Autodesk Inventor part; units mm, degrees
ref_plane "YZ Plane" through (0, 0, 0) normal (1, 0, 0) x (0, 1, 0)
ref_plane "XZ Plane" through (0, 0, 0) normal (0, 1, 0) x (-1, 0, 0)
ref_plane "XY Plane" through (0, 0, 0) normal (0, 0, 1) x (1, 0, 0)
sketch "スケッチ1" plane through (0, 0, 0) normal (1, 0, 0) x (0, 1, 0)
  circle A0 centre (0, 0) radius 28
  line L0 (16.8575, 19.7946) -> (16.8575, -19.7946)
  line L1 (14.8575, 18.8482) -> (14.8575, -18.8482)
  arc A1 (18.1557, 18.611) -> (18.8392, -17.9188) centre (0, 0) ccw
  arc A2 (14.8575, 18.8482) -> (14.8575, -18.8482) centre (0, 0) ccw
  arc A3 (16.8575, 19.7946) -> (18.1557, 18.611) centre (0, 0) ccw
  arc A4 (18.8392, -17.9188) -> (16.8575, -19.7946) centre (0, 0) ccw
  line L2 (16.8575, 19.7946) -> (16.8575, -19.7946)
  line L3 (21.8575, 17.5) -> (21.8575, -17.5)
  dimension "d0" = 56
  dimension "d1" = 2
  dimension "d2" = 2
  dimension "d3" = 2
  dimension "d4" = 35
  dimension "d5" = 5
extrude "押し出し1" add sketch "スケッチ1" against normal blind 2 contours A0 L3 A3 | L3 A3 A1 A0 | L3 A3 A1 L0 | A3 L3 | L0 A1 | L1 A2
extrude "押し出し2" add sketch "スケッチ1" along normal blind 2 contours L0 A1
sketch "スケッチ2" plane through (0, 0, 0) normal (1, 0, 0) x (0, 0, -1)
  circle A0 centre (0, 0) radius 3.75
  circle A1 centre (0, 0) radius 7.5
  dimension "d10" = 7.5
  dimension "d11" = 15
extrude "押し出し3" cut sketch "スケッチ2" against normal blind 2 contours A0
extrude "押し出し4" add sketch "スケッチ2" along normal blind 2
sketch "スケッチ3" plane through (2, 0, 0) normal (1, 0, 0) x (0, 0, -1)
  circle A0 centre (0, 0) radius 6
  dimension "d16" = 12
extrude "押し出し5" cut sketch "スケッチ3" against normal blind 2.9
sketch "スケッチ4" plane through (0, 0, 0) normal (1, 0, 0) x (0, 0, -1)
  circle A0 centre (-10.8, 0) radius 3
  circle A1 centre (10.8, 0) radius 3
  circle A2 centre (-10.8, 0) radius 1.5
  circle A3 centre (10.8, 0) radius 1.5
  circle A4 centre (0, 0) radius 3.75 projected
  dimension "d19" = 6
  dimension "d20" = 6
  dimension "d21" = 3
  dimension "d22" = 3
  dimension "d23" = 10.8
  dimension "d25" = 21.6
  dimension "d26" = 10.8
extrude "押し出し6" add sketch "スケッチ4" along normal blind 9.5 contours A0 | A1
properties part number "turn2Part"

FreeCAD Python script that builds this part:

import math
import FreeCAD as App
import Part
import Sketcher
from FreeCAD import Vector
Q = App.Units.Quantity

doc = App.newDocument("Part")
body = doc.addObject("PartDesign::Body", "Body")

sketch1 = body.newObject("Sketcher::SketchObject", "Sketch")
sketch1.AttachmentSupport = (doc.getObject("YZ_Plane"), [""])
sketch1.MapMode = "FlatFace"
sketch1.addGeometry(Part.Circle(Vector(0, 0, 0), Vector(0, 0, 1), 28), False)
sketch1.addConstraint([
    Sketcher.Constraint("Coincident", 0, 3, -1, 1),
    Sketcher.Constraint("Diameter", 0, Q("56 mm")),
])
pad1 = body.newObject("PartDesign::Pad", "Pad")
pad1.Profile = sketch1
pad1.Length = 2
pad1.Reversed = True

sketch2 = body.newObject("Sketcher::SketchObject", "Sketch001")
sketch2.AttachmentSupport = (doc.getObject("YZ_Plane"), [""])
sketch2.MapMode = "FlatFace"
sketch2.addGeometry([
    Part.LineSegment(Vector(17, -20, 0), Vector(17, 20, 0)),
    Part.ArcOfCircle(Part.Circle(Vector(0, 0, 0), Vector(0, 0, 1), 26), math.radians(50), math.radians(310)),
    Part.ArcOfCircle(Part.Circle(Vector(0, 0, 0), Vector(0, 0, 1), 24), math.radians(52), math.radians(308)),
    Part.LineSegment(Vector(15, 19, 0), Vector(15, -19, 0)),
], False)
sketch2.addConstraint([
    Sketcher.Constraint("Coincident", 0, 1, 1, 2),
    Sketcher.Constraint("Coincident", 1, 1, 0, 2),
    Sketcher.Constraint("Coincident", 2, 1, 3, 1),
    Sketcher.Constraint("Coincident", 3, 2, 2, 2),
    Sketcher.Constraint("Vertical", 0),
    Sketcher.Constraint("Vertical", 3),
    Sketcher.Constraint("Coincident", 1, 3, -1, 1),
    Sketcher.Constraint("Coincident", 2, 3, -1, 1),
    Sketcher.Constraint("Radius", 1, Q("26 mm")),
    Sketcher.Constraint("Radius", 2, Q("24 mm")),
    Sketcher.Constraint("DistanceX", 2, 1, 1, 1, Q("2 mm")),
    Sketcher.Constraint("DistanceY", 0, 1, 0, 2, Q("39.5892 mm")),
])
pad2 = body.newObject("PartDesign::Pad", "Pad001")
pad2.Profile = sketch2
pad2.Length = 2

sketch3 = body.newObject("Sketcher::SketchObject", "Sketch002")
sketch3.AttachmentSupport = (doc.getObject("YZ_Plane"), [""])
sketch3.MapMode = "FlatFace"
sketch3.addGeometry(Part.Circle(Vector(0, 0, 0), Vector(0, 0, 1), 3.8), False)
sketch3.addConstraint([
    Sketcher.Constraint("Coincident", 0, 3, -1, 1),
    Sketcher.Constraint("Diameter", 0, Q("7.5 mm")),
])
pocket1 = body.newObject("PartDesign::Pocket", "Pocket")
pocket1.Profile = sketch3
pocket1.Length = 2

sketch4 = body.newObject("Sketcher::SketchObject", "Sketch003")
sketch4.AttachmentSupport = (doc.getObject("YZ_Plane"), [""])
sketch4.MapMode = "FlatFace"
sketch4.addGeometry([
    Part.Circle(Vector(0, 0, 0), Vector(0, 0, 1), 7.5),
    Part.Circle(Vector(0, 0, 0), Vector(0, 0, 1), 3.8),
], False)
sketch4.addConstraint([
    Sketcher.Constraint("Coincident", 0, 3, -1, 1),
    Sketcher.Constraint("Coincident", 1, 3, -1, 1),
    Sketcher.Constraint("Diameter", 0, Q("15 mm")),
    Sketcher.Constraint("Diameter", 1, Q("7.5 mm")),
])
pad3 = body.newObject("PartDesign::Pad", "Pad002")
pad3.Profile = sketch4
pad3.Length = 2

sketch5 = body.newObject("Sketcher::SketchObject", "Sketch004")
sketch5.AttachmentSupport = (doc.getObject("YZ_Plane"), [""])
sketch5.MapMode = "FlatFace"
sketch5.AttachmentOffset = App.Placement(Vector(0, 0, 2), App.Rotation())
sketch5.addGeometry(Part.Circle(Vector(0, 0, 0), Vector(0, 0, 1), 6), False)
sketch5.addConstraint([
    Sketcher.Constraint("Coincident", 0, 3, -1, 1),
    Sketcher.Constraint("Diameter", 0, Q("12 mm")),
])
pocket2 = body.newObject("PartDesign::Pocket", "Pocket001")
pocket2.Profile = sketch5
pocket2.Length = 2.9

sketch6 = body.newObject("Sketcher::SketchObject", "Sketch005")
sketch6.AttachmentSupport = (doc.getObject("YZ_Plane"), [""])
sketch6.MapMode = "FlatFace"
sketch6.addGeometry([
    Part.Circle(Vector(0, 10.8, 0), Vector(0, 0, 1), 3),
    Part.Circle(Vector(0, 10.8, 0), Vector(0, 0, 1), 1.5),
    Part.Circle(Vector(0, -10.8, 0), Vector(0, 0, 1), 3),
    Part.Circle(Vector(0, -10.8, 0), Vector(0, 0, 1), 1.5),
], False)
sketch6.addConstraint([
    Sketcher.Constraint("Coincident", 1, 3, 0, 3),
    Sketcher.Constraint("Coincident", 3, 3, 2, 3),
    Sketcher.Constraint("Equal", 0, 2),
    Sketcher.Constraint("Equal", 1, 3),
    Sketcher.Constraint("Symmetric", 0, 3, 2, 3, -1, 1),
    Sketcher.Constraint("PointOnObject", 0, 3, -2),
    Sketcher.Constraint("Diameter", 0, Q("6 mm")),
    Sketcher.Constraint("Diameter", 1, Q("3 mm")),
    Sketcher.Constraint("DistanceY", -1, 1, 0, 3, Q("10.8 mm")),
])
pad4 = body.newObject("PartDesign::Pad", "Pad003")
pad4.Profile = sketch6
pad4.Length = 9.5

doc.recompute()
